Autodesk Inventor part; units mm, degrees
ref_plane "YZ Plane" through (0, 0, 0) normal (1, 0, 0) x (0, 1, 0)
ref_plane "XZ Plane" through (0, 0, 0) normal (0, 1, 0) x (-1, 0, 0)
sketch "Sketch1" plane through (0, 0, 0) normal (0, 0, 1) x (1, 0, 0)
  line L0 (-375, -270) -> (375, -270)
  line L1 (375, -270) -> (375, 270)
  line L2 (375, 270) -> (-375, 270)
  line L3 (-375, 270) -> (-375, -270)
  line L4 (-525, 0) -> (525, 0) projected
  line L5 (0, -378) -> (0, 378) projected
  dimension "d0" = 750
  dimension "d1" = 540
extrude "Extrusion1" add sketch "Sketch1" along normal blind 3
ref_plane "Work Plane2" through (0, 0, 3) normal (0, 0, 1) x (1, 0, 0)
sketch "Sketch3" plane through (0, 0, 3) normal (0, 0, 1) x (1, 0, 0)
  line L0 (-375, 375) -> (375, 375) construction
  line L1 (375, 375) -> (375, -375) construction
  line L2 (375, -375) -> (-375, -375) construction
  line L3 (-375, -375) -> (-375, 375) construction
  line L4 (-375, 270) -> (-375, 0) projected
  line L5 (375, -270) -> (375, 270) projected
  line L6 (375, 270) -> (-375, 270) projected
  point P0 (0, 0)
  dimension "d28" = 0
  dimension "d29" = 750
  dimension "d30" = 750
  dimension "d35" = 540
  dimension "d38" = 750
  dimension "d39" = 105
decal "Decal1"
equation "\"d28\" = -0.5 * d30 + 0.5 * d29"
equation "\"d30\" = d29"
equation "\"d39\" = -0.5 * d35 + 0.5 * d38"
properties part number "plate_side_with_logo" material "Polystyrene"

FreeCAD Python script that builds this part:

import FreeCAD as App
import Part
import Sketcher


def add_polygon(sketch, points):
    """Adds a closed chain of lines whose ends are joined by coincident constraints."""
    first, n = sketch.GeometryCount, len(points)
    for a, b in zip(points, points[1:] + points[:1]):
        sketch.addGeometry(Part.LineSegment(App.Vector(*a, 0), App.Vector(*b, 0)), False)
    for i in range(n):
        sketch.addConstraint(Sketcher.Constraint("Coincident", first + i, 2, first + (i + 1) % n, 1))

doc = App.newDocument("Part")
body = doc.addObject("PartDesign::Body", "Body")

sketch1 = body.newObject("Sketcher::SketchObject", "Sketch")
sketch1.AttachmentSupport = (doc.getObject("XY_Plane"), [""])
sketch1.MapMode = "FlatFace"
add_polygon(sketch1, [(-375, -270), (375, -270), (375, 270), (-375, 270)])
sketch1.addConstraint(Sketcher.Constraint("Horizontal", 0))
sketch1.addConstraint(Sketcher.Constraint("Vertical", 1))
sketch1.addConstraint(Sketcher.Constraint("Horizontal", 2))
sketch1.addConstraint(Sketcher.Constraint("Vertical", 3))
sketch1.addConstraint(Sketcher.Constraint("Symmetric", 0, 2, 2, 2, -1, 1))
sketch1.addConstraint(Sketcher.Constraint("DistanceX", 0, 1, 0, 2, 750.0))
sketch1.addConstraint(Sketcher.Constraint("DistanceY", 1, 1, 1, 2, 540.0))
pad1 = body.newObject("PartDesign::Pad", "Pad")
pad1.Profile = sketch1
pad1.Length = 3

doc.recompute()
